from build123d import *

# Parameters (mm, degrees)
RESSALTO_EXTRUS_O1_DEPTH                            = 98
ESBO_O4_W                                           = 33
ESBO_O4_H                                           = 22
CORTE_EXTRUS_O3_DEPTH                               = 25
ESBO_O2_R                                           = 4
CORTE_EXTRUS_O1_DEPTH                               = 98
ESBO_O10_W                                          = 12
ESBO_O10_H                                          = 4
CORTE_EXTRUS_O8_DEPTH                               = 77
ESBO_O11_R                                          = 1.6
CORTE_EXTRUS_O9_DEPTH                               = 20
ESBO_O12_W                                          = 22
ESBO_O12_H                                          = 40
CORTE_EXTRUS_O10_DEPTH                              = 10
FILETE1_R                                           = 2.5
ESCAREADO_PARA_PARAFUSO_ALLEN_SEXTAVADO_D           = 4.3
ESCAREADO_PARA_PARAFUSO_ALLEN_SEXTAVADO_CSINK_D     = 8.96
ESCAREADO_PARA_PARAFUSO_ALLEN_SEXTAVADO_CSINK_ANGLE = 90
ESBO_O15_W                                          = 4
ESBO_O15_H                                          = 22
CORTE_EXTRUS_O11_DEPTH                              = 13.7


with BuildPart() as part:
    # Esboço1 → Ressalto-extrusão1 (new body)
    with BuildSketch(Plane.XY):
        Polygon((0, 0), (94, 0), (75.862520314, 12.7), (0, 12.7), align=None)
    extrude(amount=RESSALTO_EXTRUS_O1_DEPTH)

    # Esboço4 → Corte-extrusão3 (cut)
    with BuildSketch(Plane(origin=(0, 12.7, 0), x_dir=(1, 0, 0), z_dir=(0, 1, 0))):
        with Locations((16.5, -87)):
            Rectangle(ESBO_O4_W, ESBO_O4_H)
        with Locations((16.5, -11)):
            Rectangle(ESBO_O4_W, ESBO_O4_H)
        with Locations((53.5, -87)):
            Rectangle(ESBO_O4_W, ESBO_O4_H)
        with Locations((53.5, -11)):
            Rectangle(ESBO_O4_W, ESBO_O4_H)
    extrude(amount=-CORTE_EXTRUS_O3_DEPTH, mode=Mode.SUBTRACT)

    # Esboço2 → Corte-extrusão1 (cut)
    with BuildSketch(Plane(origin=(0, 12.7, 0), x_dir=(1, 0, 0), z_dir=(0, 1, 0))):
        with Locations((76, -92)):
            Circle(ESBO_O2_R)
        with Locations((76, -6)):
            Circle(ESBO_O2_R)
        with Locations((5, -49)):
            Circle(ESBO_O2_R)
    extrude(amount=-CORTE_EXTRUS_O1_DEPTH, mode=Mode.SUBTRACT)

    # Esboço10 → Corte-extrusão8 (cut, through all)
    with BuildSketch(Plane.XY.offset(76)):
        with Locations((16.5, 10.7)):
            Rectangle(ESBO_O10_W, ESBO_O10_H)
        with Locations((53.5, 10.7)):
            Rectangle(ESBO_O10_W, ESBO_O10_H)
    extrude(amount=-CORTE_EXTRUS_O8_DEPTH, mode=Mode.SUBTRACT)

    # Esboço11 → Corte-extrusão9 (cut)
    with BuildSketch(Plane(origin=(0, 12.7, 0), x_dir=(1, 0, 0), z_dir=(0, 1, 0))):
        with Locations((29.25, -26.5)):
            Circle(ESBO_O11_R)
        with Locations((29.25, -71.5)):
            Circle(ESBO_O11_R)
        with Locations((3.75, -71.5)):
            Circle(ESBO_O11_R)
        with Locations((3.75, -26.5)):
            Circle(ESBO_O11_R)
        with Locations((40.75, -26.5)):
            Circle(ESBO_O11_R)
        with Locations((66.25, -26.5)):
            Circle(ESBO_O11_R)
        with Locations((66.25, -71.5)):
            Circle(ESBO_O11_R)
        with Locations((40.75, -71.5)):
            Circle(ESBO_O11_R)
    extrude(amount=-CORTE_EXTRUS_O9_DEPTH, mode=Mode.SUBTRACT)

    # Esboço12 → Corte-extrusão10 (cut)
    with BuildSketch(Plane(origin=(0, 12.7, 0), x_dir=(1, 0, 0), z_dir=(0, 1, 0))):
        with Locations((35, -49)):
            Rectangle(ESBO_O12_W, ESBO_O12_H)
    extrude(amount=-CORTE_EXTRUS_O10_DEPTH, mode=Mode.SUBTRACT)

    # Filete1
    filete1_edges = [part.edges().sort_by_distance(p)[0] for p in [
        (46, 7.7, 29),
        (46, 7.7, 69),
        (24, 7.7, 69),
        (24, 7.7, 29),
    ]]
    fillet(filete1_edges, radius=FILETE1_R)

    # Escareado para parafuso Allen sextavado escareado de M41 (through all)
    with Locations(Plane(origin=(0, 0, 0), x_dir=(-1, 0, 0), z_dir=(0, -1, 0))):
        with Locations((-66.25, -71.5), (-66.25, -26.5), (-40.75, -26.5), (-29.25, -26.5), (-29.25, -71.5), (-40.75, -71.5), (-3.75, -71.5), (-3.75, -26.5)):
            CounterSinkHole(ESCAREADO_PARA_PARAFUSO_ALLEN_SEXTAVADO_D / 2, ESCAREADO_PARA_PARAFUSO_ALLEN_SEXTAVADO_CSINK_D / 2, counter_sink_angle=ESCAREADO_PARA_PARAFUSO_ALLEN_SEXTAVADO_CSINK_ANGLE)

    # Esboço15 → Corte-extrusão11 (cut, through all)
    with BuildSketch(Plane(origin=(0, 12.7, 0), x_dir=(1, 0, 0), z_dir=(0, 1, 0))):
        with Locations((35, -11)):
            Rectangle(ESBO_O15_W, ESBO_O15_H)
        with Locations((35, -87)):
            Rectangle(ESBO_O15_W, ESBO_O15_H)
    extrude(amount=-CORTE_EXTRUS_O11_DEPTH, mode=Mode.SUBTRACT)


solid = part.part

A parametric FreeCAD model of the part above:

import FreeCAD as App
import Part
import Sketcher
Q = App.Units.Quantity


def edges_at(feature, points):
    """Names of the edges that pass closest to the given points."""
    edges = feature.Shape.Edges
    near = lambda p: min(range(len(edges)), key=lambda i: edges[i].distToShape(Part.Vertex(*p))[0])
    return sorted({f"Edge{near(p) + 1}" for p in points})

doc = App.newDocument("Part")
params = doc.addObject("Spreadsheet::Sheet", "Params")
for row, (alias, value) in enumerate([
    ("sketch1_width", "94 mm"),
    ("sketch1_height", "12.7 mm"),
    ("pad1_length", "98 mm"),
    ("sketch2_width", "33 mm"),
    ("sketch2_height", "22 mm"),
    ("pocket1_length", "25 mm"),
    ("sketch3_diameter", "8 mm"),
    ("pocket2_length", "98 mm"),
    ("sketch4_width", "12 mm"),
    ("sketch4_height", "4 mm"),
    ("sketch5_diameter", "3.2 mm"),
    ("pocket4_length", "20 mm"),
    ("sketch6_width", "22 mm"),
    ("sketch6_height", "40 mm"),
    ("pocket5_length", "10 mm"),
    ("fillet_radius", "2.5 mm"),
    ("sketch7_diameter", "4.3 mm"),
    ("hole_diameter", "4.3 mm"),
    ("hole_csink_diameter", "8.96 mm"),
    ("sketch8_width", "4 mm"),
    ("sketch8_height", "22 mm"),
], start=1):
    params.set(f"A{row}", alias)
    params.set(f"B{row}", "=" + value)
    params.setAlias(f"B{row}", alias)

body = doc.addObject("PartDesign::Body", "Body")

sketch1 = body.newObject("Sketcher::SketchObject", "Sketch")
sketch1.AttachmentSupport = (doc.getObject("XY_Plane"), [""])
sketch1.MapMode = "FlatFace"
sketch1.addGeometry([
    Part.LineSegment(App.Vector(0, 0, 0), App.Vector(94, 0, 0)),
    Part.LineSegment(App.Vector(94, 0, 0), App.Vector(76, 13, 0)),
    Part.LineSegment(App.Vector(76, 13, 0), App.Vector(0, 13, 0)),
    Part.LineSegment(App.Vector(0, 13, 0), App.Vector(0, 0, 0)),
], False)
sketch1.addConstraint([
    Sketcher.Constraint("Coincident", 0, 2, 1, 1),
    Sketcher.Constraint("Coincident", 1, 2, 2, 1),
    Sketcher.Constraint("Coincident", 2, 2, 3, 1),
    Sketcher.Constraint("Coincident", 3, 2, 0, 1),
    Sketcher.Constraint("Horizontal", 0),
    Sketcher.Constraint("Horizontal", 2),
    Sketcher.Constraint("Vertical", 3),
    Sketcher.Constraint("Coincident", 3, 2, -1, 1),
    Sketcher.Constraint("DistanceX", 0, 1, 0, 2, 94.0),
    Sketcher.Constraint("Angle", 1, Q("145 deg")),
    Sketcher.Constraint("DistanceY", 3, 2, 3, 1, 12.7),
])
sketch1.setExpression("Constraints[8]", "Params.sketch1_width")
sketch1.setExpression("Constraints[10]", "Params.sketch1_height")
pad1 = body.newObject("PartDesign::Pad", "Pad")
pad1.Profile = sketch1
pad1.setExpression("Length", "Params.pad1_length")

sketch2 = body.newObject("Sketcher::SketchObject", "Sketch001")
sketch2.AttachmentSupport = (doc.getObject("XZ_Plane"), [""])
sketch2.MapMode = "FlatFace"
sketch2.AttachmentOffset = App.Placement(App.Vector(0, 0, -12.7), App.Rotation())
sketch2.addGeometry([
    Part.LineSegment(App.Vector(0, 76, 0), App.Vector(0, 98, 0)),
    Part.LineSegment(App.Vector(0, 98, 0), App.Vector(33, 98, 0)),
    Part.LineSegment(App.Vector(33, 98, 0), App.Vector(33, 76, 0)),
    Part.LineSegment(App.Vector(33, 76, 0), App.Vector(0, 76, 0)),
    Part.LineSegment(App.Vector(0, 0, 0), App.Vector(0, 22, 0)),
    Part.LineSegment(App.Vector(0, 22, 0), App.Vector(33, 22, 0)),
    Part.LineSegment(App.Vector(33, 22, 0), App.Vector(33, 0, 0)),
    Part.LineSegment(App.Vector(33, 0, 0), App.Vector(0, 0, 0)),
    Part.LineSegment(App.Vector(37, 76, 0), App.Vector(37, 98, 0)),
    Part.LineSegment(App.Vector(37, 98, 0), App.Vector(70, 98, 0)),
    Part.LineSegment(App.Vector(70, 98, 0), App.Vector(70, 76, 0)),
    Part.LineSegment(App.Vector(70, 76, 0), App.Vector(37, 76, 0)),
    Part.LineSegment(App.Vector(37, 0, 0), App.Vector(37, 22, 0)),
    Part.LineSegment(App.Vector(37, 22, 0), App.Vector(70, 22, 0)),
    Part.LineSegment(App.Vector(70, 22, 0), App.Vector(70, 0, 0)),
    Part.LineSegment(App.Vector(70, 0, 0), App.Vector(37, 0, 0)),
], False)
sketch2.addConstraint([
    Sketcher.Constraint("Coincident", 0, 2, 1, 1),
    Sketcher.Constraint("Coincident", 1, 2, 2, 1),
    Sketcher.Constraint("Coincident", 2, 2, 3, 1),
    Sketcher.Constraint("Coincident", 3, 2, 0, 1),
    Sketcher.Constraint("Coincident", 4, 2, 5, 1),
    Sketcher.Constraint("Coincident", 5, 2, 6, 1),
    Sketcher.Constraint("Coincident", 6, 2, 7, 1),
    Sketcher.Constraint("Coincident", 7, 2, 4, 1),
    Sketcher.Constraint("Coincident", 8, 2, 9, 1),
    Sketcher.Constraint("Coincident", 9, 2, 10, 1),
    Sketcher.Constraint("Coincident", 10, 2, 11, 1),
    Sketcher.Constraint("Coincident", 11, 2, 8, 1),
    Sketcher.Constraint("Coincident", 12, 2, 13, 1),
    Sketcher.Constraint("Coincident", 13, 2, 14, 1),
    Sketcher.Constraint("Coincident", 14, 2, 15, 1),
    Sketcher.Constraint("Coincident", 15, 2, 12, 1),
    Sketcher.Constraint("Vertical", 0),
    Sketcher.Constraint("Horizontal", 1),
    Sketcher.Constraint("Vertical", 2),
    Sketcher.Constraint("Horizontal", 3),
    Sketcher.Constraint("Vertical", 4),
    Sketcher.Constraint("Horizontal", 5),
    Sketcher.Constraint("Vertical", 6),
    Sketcher.Constraint("Horizontal", 7),
    Sketcher.Constraint("Vertical", 8),
    Sketcher.Constraint("Horizontal", 9),
    Sketcher.Constraint("Vertical", 10),
    Sketcher.Constraint("Horizontal", 11),
    Sketcher.Constraint("Vertical", 12),
    Sketcher.Constraint("Horizontal", 13),
    Sketcher.Constraint("Vertical", 14),
    Sketcher.Constraint("Horizontal", 15),
    Sketcher.Constraint("Coincident", 7, 2, -1, 1),
    Sketcher.Constraint("PointOnObject", 0, 2, -2),
    Sketcher.Constraint("PointOnObject", 14, 2, -1),
    Sketcher.Constraint("Horizontal", 1, 2, 8, 2),
    Sketcher.Constraint("Horizontal", 3, 2, 10, 2),
    Sketcher.Constraint("Horizontal", 5, 2, 12, 2),
    Sketcher.Constraint("Vertical", 2, 2, 5, 2),
    Sketcher.Constraint("Vertical", 11, 2, 12, 2),
    Sketcher.Constraint("Vertical", 10, 2, 13, 2),
    Sketcher.Constraint("Equal", 7, 9),
    Sketcher.Constraint("Equal", 2, 4),
    Sketcher.Constraint("DistanceX", 1, 1, 1, 2, 33.0),
    Sketcher.Constraint("DistanceY", 0, 1, 0, 2, 22.0),
    Sketcher.Constraint("DistanceY", -1, 1, 0, 2, 98.0),
    Sketcher.Constraint("DistanceX", -1, 1, 8, 2, 37.0),
])
sketch2.setExpression("Constraints[43]", "Params.sketch2_width")
sketch2.setExpression("Constraints[44]", "Params.sketch2_height")
pocket1 = body.newObject("PartDesign::Pocket", "Pocket")
pocket1.Profile = sketch2
pocket1.setExpression("Length", "Params.pocket1_length")
pocket1.Reversed = True

sketch3 = body.newObject("Sketcher::SketchObject", "Sketch002")
sketch3.AttachmentSupport = (doc.getObject("XZ_Plane"), [""])
sketch3.MapMode = "FlatFace"
sketch3.AttachmentOffset = App.Placement(App.Vector(0, 0, -12.7), App.Rotation())
sketch3.addGeometry([
    Part.Circle(App.Vector(76, 92, 0), App.Vector(0, 0, 1), 4),
    Part.Circle(App.Vector(76, 6, 0), App.Vector(0, 0, 1), 4),
    Part.Circle(App.Vector(5, 49, 0), App.Vector(0, 0, 1), 4),
], False)
sketch3.addConstraint([
    Sketcher.Constraint("Equal", 0, 1),
    Sketcher.Constraint("Equal", 1, 2),
    Sketcher.Constraint("Vertical", 0, 3, 1, 3),
    Sketcher.Constraint("Diameter", 0, 8.0),
    Sketcher.Constraint("DistanceX", -1, 1, 0, 3, 76.0),
    Sketcher.Constraint("DistanceY", -1, 1, 0, 3, 92.0),
    Sketcher.Constraint("DistanceY", -1, 1, 1, 3, 6.0),
    Sketcher.Constraint("DistanceX", -1, 1, 2, 3, 5.0),
    Sketcher.Constraint("DistanceY", -1, 1, 2, 3, 49.0),
])
sketch3.setExpression("Constraints[3]", "Params.sketch3_diameter")
pocket2 = body.newObject("PartDesign::Pocket", "Pocket001")
pocket2.Profile = sketch3
pocket2.setExpression("Length", "Params.pocket2_length")
pocket2.Reversed = True

sketch4 = body.newObject("Sketcher::SketchObject", "Sketch003")
sketch4.AttachmentSupport = (doc.getObject("XY_Plane"), [""])
sketch4.MapMode = "FlatFace"
sketch4.AttachmentOffset = App.Placement(App.Vector(0, 0, 76), App.Rotation())
sketch4.addGeometry([
    Part.LineSegment(App.Vector(10.5, 12.7, 0), App.Vector(10.5, 8.7, 0)),
    Part.LineSegment(App.Vector(10.5, 8.7, 0), App.Vector(22.5, 8.7, 0)),
    Part.LineSegment(App.Vector(22.5, 8.7, 0), App.Vector(22.5, 12.7, 0)),
    Part.LineSegment(App.Vector(22.5, 12.7, 0), App.Vector(10.5, 12.7, 0)),
    Part.LineSegment(App.Vector(47.5, 12.7, 0), App.Vector(47.5, 8.7, 0)),
    Part.LineSegment(App.Vector(47.5, 8.7, 0), App.Vector(59.5, 8.7, 0)),
    Part.LineSegment(App.Vector(59.5, 8.7, 0), App.Vector(59.5, 12.7, 0)),
    Part.LineSegment(App.Vector(59.5, 12.7, 0), App.Vector(47.5, 12.7, 0)),
], False)
sketch4.addConstraint([
    Sketcher.Constraint("Coincident", 0, 2, 1, 1),
    Sketcher.Constraint("Coincident", 1, 2, 2, 1),
    Sketcher.Constraint("Coincident", 2, 2, 3, 1),
    Sketcher.Constraint("Coincident", 3, 2, 0, 1),
    Sketcher.Constraint("Coincident", 4, 2, 5, 1),
    Sketcher.Constraint("Coincident", 5, 2, 6, 1),
    Sketcher.Constraint("Coincident", 6, 2, 7, 1),
    Sketcher.Constraint("Coincident", 7, 2, 4, 1),
    Sketcher.Constraint("Vertical", 0),
    Sketcher.Constraint("Horizontal", 1),
    Sketcher.Constraint("Vertical", 2),
    Sketcher.Constraint("Horizontal", 3),
    Sketcher.Constraint("Vertical", 4),
    Sketcher.Constraint("Horizontal", 5),
    Sketcher.Constraint("Vertical", 6),
    Sketcher.Constraint("Horizontal", 7),
    Sketcher.Constraint("Horizontal", 1, 2, 4, 2),
    Sketcher.Constraint("Horizontal", 3, 2, 6, 2),
    Sketcher.Constraint("Equal", 3, 5),
    Sketcher.Constraint("DistanceX", 1, 1, 1, 2, 12.0),
    Sketcher.Constraint("DistanceY", 0, 2, 0, 1, 4.0),
    Sketcher.Constraint("DistanceX", 1, 2, 4, 2, 25.0),
    Sketcher.Constraint("DistanceX", -1, 1, 0, 2, 10.5),
    Sketcher.Constraint("DistanceY", -1, 1, 0, 2, 8.7),
])
sketch4.setExpression("Constraints[19]", "Params.sketch4_width")
sketch4.setExpression("Constraints[20]", "Params.sketch4_height")
pocket3 = body.newObject("PartDesign::Pocket", "Pocket002")
pocket3.Profile = sketch4
pocket3.Type = "ThroughAll"

sketch5 = body.newObject("Sketcher::SketchObject", "Sketch004")
sketch5.AttachmentSupport = (doc.getObject("XZ_Plane"), [""])
sketch5.MapMode = "FlatFace"
sketch5.AttachmentOffset = App.Placement(App.Vector(0, 0, -12.7), App.Rotation())
sketch5.addGeometry([
    Part.Circle(App.Vector(29.2, 26.5, 0), App.Vector(0, 0, 1), 1.6),
    Part.Circle(App.Vector(29.2, 71.5, 0), App.Vector(0, 0, 1), 1.6),
    Part.Circle(App.Vector(3.8, 71.5, 0), App.Vector(0, 0, 1), 1.6),
    Part.Circle(App.Vector(3.8, 26.5, 0), App.Vector(0, 0, 1), 1.6),
    Part.Circle(App.Vector(40.8, 26.5, 0), App.Vector(0, 0, 1), 1.6),
    Part.Circle(App.Vector(66.2, 26.5, 0), App.Vector(0, 0, 1), 1.6),
    Part.Circle(App.Vector(66.2, 71.5, 0), App.Vector(0, 0, 1), 1.6),
    Part.Circle(App.Vector(40.8, 71.5, 0), App.Vector(0, 0, 1), 1.6),
], False)
sketch5.addConstraint([
    Sketcher.Constraint("Equal", 0, 1),
    Sketcher.Constraint("Equal", 1, 2),
    Sketcher.Constraint("Equal", 2, 3),
    Sketcher.Constraint("Equal", 3, 4),
    Sketcher.Constraint("Equal", 4, 5),
    Sketcher.Constraint("Equal", 5, 6),
    Sketcher.Constraint("Equal", 6, 7),
    Sketcher.Constraint("Horizontal", 1, 3, 2, 3),
    Sketcher.Constraint("Horizontal", 0, 3, 3, 3),
    Sketcher.Constraint("Horizontal", 3, 3, 4, 3),
    Sketcher.Constraint("Horizontal", 4, 3, 5, 3),
    Sketcher.Constraint("Horizontal", 2, 3, 6, 3),
    Sketcher.Constraint("Horizontal", 6, 3, 7, 3),
    Sketcher.Constraint("Vertical", 0, 3, 1, 3),
    Sketcher.Constraint("Vertical", 2, 3, 3, 3),
    Sketcher.Constraint("Vertical", 5, 3, 6, 3),
    Sketcher.Constraint("Vertical", 4, 3, 7, 3),
    Sketcher.Constraint("Diameter", 0, 3.2),
    Sketcher.Constraint("DistanceY", 0, 3, 1, 3, 45.0),
    Sketcher.Constraint("DistanceX", 3, 3, 4, 3, 37.0),
    Sketcher.Constraint("DistanceX", 0, 3, 5, 3, 37.0),
    Sketcher.Constraint("DistanceY", -1, 1, 0, 3, 26.5),
    Sketcher.Constraint("DistanceX", 2, 3, 1, 3, 25.5),
    Sketcher.Constraint("DistanceX", -1, 1, 0, 3, 29.25),
])
sketch5.setExpression("Constraints[17]", "Params.sketch5_diameter")
pocket4 = body.newObject("PartDesign::Pocket", "Pocket003")
pocket4.Profile = sketch5
pocket4.setExpression("Length", "Params.pocket4_length")
pocket4.Reversed = True

sketch6 = body.newObject("Sketcher::SketchObject", "Sketch005")
sketch6.AttachmentSupport = (doc.getObject("XZ_Plane"), [""])
sketch6.MapMode = "FlatFace"
sketch6.AttachmentOffset = App.Placement(App.Vector(0, 0, -12.7), App.Rotation())
sketch6.addGeometry([
    Part.LineSegment(App.Vector(24, 29, 0), App.Vector(24, 69, 0)),
    Part.LineSegment(App.Vector(24, 69, 0), App.Vector(46, 69, 0)),
    Part.LineSegment(App.Vector(46, 69, 0), App.Vector(46, 29, 0)),
    Part.LineSegment(App.Vector(46, 29, 0), App.Vector(24, 29, 0)),
], False)
sketch6.addConstraint([
    Sketcher.Constraint("Coincident", 0, 2, 1, 1),
    Sketcher.Constraint("Coincident", 1, 2, 2, 1),
    Sketcher.Constraint("Coincident", 2, 2, 3, 1),
    Sketcher.Constraint("Coincident", 3, 2, 0, 1),
    Sketcher.Constraint("Vertical", 0),
    Sketcher.Constraint("Horizontal", 1),
    Sketcher.Constraint("Vertical", 2),
    Sketcher.Constraint("Horizontal", 3),
    Sketcher.Constraint("DistanceX", 1, 1, 1, 2, 22.0),
    Sketcher.Constraint("DistanceY", 0, 1, 0, 2, 40.0),
    Sketcher.Constraint("DistanceX", -1, 1, 0, 2, 24.0),
    Sketcher.Constraint("DistanceY", -1, 1, 0, 2, 69.0),
])
sketch6.setExpression("Constraints[8]", "Params.sketch6_width")
sketch6.setExpression("Constraints[9]", "Params.sketch6_height")
pocket5 = body.newObject("PartDesign::Pocket", "Pocket004")
pocket5.Profile = sketch6
pocket5.setExpression("Length", "Params.pocket5_length")
pocket5.Reversed = True
doc.recompute()

fillet = body.newObject("PartDesign::Fillet", "Fillet")
fillet.Base = (pocket5, edges_at(pocket5, [
    (46, 7.7, 29),
    (46, 7.7, 69),
    (24, 7.7, 69),
    (24, 7.7, 29),
]))
fillet.setExpression("Radius", "Params.fillet_radius")

sketch7 = body.newObject("Sketcher::SketchObject", "Sketch006")
sketch7.AttachmentSupport = (doc.getObject("XZ_Plane"), [""])
sketch7.MapMode = "FlatFace"
sketch7.addGeometry([
    Part.Circle(App.Vector(66.2, 71.5, 0), App.Vector(0, 0, 1), 2.1),
    Part.Circle(App.Vector(66.2, 26.5, 0), App.Vector(0, 0, 1), 2.1),
    Part.Circle(App.Vector(40.8, 26.5, 0), App.Vector(0, 0, 1), 2.1),
    Part.Circle(App.Vector(29.2, 26.5, 0), App.Vector(0, 0, 1), 2.1),
    Part.Circle(App.Vector(29.2, 71.5, 0), App.Vector(0, 0, 1), 2.1),
    Part.Circle(App.Vector(40.8, 71.5, 0), App.Vector(0, 0, 1), 2.1),
    Part.Circle(App.Vector(3.8, 71.5, 0), App.Vector(0, 0, 1), 2.1),
    Part.Circle(App.Vector(3.8, 26.5, 0), App.Vector(0, 0, 1), 2.1),
], False)
sketch7.addConstraint([
    Sketcher.Constraint("Equal", 0, 1),
    Sketcher.Constraint("Equal", 1, 2),
    Sketcher.Constraint("Equal", 2, 3),
    Sketcher.Constraint("Equal", 3, 4),
    Sketcher.Constraint("Equal", 4, 5),
    Sketcher.Constraint("Equal", 5, 6),
    Sketcher.Constraint("Equal", 6, 7),
    Sketcher.Constraint("Horizontal", 1, 3, 2, 3),
    Sketcher.Constraint("Horizontal", 2, 3, 3, 3),
    Sketcher.Constraint("Horizontal", 0, 3, 4, 3),
    Sketcher.Constraint("Horizontal", 4, 3, 5, 3),
    Sketcher.Constraint("Horizontal", 5, 3, 6, 3),
    Sketcher.Constraint("Horizontal", 3, 3, 7, 3),
    Sketcher.Constraint("Vertical", 0, 3, 1, 3),
    Sketcher.Constraint("Vertical", 3, 3, 4, 3),
    Sketcher.Constraint("Vertical", 2, 3, 5, 3),
    Sketcher.Constraint("Vertical", 6, 3, 7, 3),
    Sketcher.Constraint("Diameter", 0, 4.3),
    Sketcher.Constraint("DistanceY", 1, 3, 0, 3, 45.0),
    Sketcher.Constraint("DistanceX", 3, 3, 1, 3, 37.0),
    Sketcher.Constraint("DistanceX", 6, 3, 5, 3, 37.0),
    Sketcher.Constraint("DistanceY", -1, 1, 0, 3, 71.5),
    Sketcher.Constraint("DistanceX", 2, 3, 1, 3, 25.5),
    Sketcher.Constraint("DistanceX", -1, 1, 0, 3, 66.25),
])
sketch7.setExpression("Constraints[17]", "Params.sketch7_diameter")
doc.recompute()
hole = body.newObject("PartDesign::Hole", "Hole")
hole.Profile = sketch7
hole.ThreadType = "None"
hole.setExpression("Diameter", "Params.hole_diameter")
hole.DepthType = "ThroughAll"
hole.HoleCutType = "Countersink"
hole.setExpression("HoleCutDiameter", "Params.hole_csink_diameter")
hole.HoleCutCountersinkAngle = 90

sketch8 = body.newObject("Sketcher::SketchObject", "Sketch007")
sketch8.AttachmentSupport = (doc.getObject("XZ_Plane"), [""])
sketch8.MapMode = "FlatFace"
sketch8.AttachmentOffset = App.Placement(App.Vector(0, 0, -12.7), App.Rotation())
sketch8.addGeometry([
    Part.LineSegment(App.Vector(33, 0, 0), App.Vector(33, 22, 0)),
    Part.LineSegment(App.Vector(33, 22, 0), App.Vector(37, 22, 0)),
    Part.LineSegment(App.Vector(37, 22, 0), App.Vector(37, 0, 0)),
    Part.LineSegment(App.Vector(37, 0, 0), App.Vector(33, 0, 0)),
    Part.LineSegment(App.Vector(33, 76, 0), App.Vector(33, 98, 0)),
    Part.LineSegment(App.Vector(33, 98, 0), App.Vector(37, 98, 0)),
    Part.LineSegment(App.Vector(37, 98, 0), App.Vector(37, 76, 0)),
    Part.LineSegment(App.Vector(37, 76, 0), App.Vector(33, 76, 0)),
], False)
sketch8.addConstraint([
    Sketcher.Constraint("Coincident", 0, 2, 1, 1),
    Sketcher.Constraint("Coincident", 1, 2, 2, 1),
    Sketcher.Constraint("Coincident", 2, 2, 3, 1),
    Sketcher.Constraint("Coincident", 3, 2, 0, 1),
    Sketcher.Constraint("Coincident", 4, 2, 5, 1),
    Sketcher.Constraint("Coincident", 5, 2, 6, 1),
    Sketcher.Constraint("Coincident", 6, 2, 7, 1),
    Sketcher.Constraint("Coincident", 7, 2, 4, 1),
    Sketcher.Constraint("Vertical", 0),
    Sketcher.Constraint("Horizontal", 1),
    Sketcher.Constraint("Vertical", 2),
    Sketcher.Constraint("Horizontal", 3),
    Sketcher.Constraint("Vertical", 4),
    Sketcher.Constraint("Horizontal", 5),
    Sketcher.Constraint("Vertical", 6),
    Sketcher.Constraint("Horizontal", 7),
    Sketcher.Constraint("PointOnObject", 2, 2, -1),
    Sketcher.Constraint("Vertical", 3, 2, 4, 2),
    Sketcher.Constraint("Vertical", 2, 2, 5, 2),
    Sketcher.Constraint("Equal", 2, 4),
    Sketcher.Constraint("DistanceX", 1, 1, 1, 2, 4.0),
    Sketcher.Constraint("DistanceY", 0, 1, 0, 2, 22.0),
    Sketcher.Constraint("DistanceX", -1, 1, 0, 2, 33.0),
    Sketcher.Constraint("DistanceY", -1, 1, 4, 2, 98.0),
])
sketch8.setExpression("Constraints[20]", "Params.sketch8_width")
sketch8.setExpression("Constraints[21]", "Params.sketch8_height")
pocket6 = body.newObject("PartDesign::Pocket", "Pocket005")
pocket6.Profile = sketch8
pocket6.Type = "ThroughAll"
pocket6.Reversed = True

doc.recompute()
